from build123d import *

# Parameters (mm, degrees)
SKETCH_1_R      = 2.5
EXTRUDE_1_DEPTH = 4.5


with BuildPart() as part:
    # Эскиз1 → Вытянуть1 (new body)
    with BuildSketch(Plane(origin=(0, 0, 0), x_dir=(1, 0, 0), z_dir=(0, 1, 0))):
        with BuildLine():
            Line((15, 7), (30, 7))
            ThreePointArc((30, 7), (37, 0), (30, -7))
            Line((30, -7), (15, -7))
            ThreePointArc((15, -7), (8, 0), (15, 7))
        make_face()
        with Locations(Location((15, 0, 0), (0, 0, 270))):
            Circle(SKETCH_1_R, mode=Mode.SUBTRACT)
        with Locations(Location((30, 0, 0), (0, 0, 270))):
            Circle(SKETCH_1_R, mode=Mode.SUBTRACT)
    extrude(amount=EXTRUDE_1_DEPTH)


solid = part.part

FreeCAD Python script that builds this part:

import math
import FreeCAD as App
import Part
import Sketcher
Q = App.Units.Quantity

doc = App.newDocument("Part")
body = doc.addObject("PartDesign::Body", "Body")

sketch1 = doc.addObject("Sketcher::SketchObject", "Sketch")
body.addObject(sketch1)
sketch1.AttachmentSupport = (doc.XZ_Plane, [""])
sketch1.MapMode = "FlatFace"
sketch1.addGeometry([
    Part.LineSegment(App.Vector(30, -7, 0), App.Vector(15, -7, 0)),
    Part.ArcOfCircle(Part.Circle(App.Vector(15, 0, 0), App.Vector(0, 0, 1), 7), math.radians(90), math.radians(270)),
    Part.LineSegment(App.Vector(15, 7, 0), App.Vector(30, 7, 0)),
    Part.ArcOfCircle(Part.Circle(App.Vector(30, 0, 0), App.Vector(0, 0, 1), 7), math.radians(-90), math.radians(90)),
    Part.Circle(App.Vector(30, 0, 0), App.Vector(0, 0, 1), 2.5),
    Part.Circle(App.Vector(15, 0, 0), App.Vector(0, 0, 1), 2.5),
], False)
sketch1.addConstraint([
    Sketcher.Constraint("Tangent", 0, 2, 1, 2),
    Sketcher.Constraint("Tangent", 1, 1, 2, 1),
    Sketcher.Constraint("Tangent", 2, 2, 3, 2),
    Sketcher.Constraint("Tangent", 3, 1, 0, 1),
    Sketcher.Constraint("Horizontal", 0),
    Sketcher.Constraint("Horizontal", 2),
    Sketcher.Constraint("Coincident", 4, 3, 3, 3),
    Sketcher.Constraint("Coincident", 5, 3, 1, 3),
    Sketcher.Constraint("Equal", 4, 5),
    Sketcher.Constraint("PointOnObject", 1, 3, -1),
    Sketcher.Constraint("Diameter", 4, Q("5 mm")),
    Sketcher.Constraint("Radius", 1, Q("7 mm")),
    Sketcher.Constraint("DistanceX", 0, 2, 0, 1, Q("15 mm")),
    Sketcher.Constraint("DistanceX", -1, 1, 1, 3, Q("15 mm")),
])
pad1 = doc.addObject("PartDesign::Pad", "Pad")
body.addObject(pad1)
pad1.Profile = sketch1
pad1.Length = 4.5
pad1.Reversed = True

doc.recompute()
